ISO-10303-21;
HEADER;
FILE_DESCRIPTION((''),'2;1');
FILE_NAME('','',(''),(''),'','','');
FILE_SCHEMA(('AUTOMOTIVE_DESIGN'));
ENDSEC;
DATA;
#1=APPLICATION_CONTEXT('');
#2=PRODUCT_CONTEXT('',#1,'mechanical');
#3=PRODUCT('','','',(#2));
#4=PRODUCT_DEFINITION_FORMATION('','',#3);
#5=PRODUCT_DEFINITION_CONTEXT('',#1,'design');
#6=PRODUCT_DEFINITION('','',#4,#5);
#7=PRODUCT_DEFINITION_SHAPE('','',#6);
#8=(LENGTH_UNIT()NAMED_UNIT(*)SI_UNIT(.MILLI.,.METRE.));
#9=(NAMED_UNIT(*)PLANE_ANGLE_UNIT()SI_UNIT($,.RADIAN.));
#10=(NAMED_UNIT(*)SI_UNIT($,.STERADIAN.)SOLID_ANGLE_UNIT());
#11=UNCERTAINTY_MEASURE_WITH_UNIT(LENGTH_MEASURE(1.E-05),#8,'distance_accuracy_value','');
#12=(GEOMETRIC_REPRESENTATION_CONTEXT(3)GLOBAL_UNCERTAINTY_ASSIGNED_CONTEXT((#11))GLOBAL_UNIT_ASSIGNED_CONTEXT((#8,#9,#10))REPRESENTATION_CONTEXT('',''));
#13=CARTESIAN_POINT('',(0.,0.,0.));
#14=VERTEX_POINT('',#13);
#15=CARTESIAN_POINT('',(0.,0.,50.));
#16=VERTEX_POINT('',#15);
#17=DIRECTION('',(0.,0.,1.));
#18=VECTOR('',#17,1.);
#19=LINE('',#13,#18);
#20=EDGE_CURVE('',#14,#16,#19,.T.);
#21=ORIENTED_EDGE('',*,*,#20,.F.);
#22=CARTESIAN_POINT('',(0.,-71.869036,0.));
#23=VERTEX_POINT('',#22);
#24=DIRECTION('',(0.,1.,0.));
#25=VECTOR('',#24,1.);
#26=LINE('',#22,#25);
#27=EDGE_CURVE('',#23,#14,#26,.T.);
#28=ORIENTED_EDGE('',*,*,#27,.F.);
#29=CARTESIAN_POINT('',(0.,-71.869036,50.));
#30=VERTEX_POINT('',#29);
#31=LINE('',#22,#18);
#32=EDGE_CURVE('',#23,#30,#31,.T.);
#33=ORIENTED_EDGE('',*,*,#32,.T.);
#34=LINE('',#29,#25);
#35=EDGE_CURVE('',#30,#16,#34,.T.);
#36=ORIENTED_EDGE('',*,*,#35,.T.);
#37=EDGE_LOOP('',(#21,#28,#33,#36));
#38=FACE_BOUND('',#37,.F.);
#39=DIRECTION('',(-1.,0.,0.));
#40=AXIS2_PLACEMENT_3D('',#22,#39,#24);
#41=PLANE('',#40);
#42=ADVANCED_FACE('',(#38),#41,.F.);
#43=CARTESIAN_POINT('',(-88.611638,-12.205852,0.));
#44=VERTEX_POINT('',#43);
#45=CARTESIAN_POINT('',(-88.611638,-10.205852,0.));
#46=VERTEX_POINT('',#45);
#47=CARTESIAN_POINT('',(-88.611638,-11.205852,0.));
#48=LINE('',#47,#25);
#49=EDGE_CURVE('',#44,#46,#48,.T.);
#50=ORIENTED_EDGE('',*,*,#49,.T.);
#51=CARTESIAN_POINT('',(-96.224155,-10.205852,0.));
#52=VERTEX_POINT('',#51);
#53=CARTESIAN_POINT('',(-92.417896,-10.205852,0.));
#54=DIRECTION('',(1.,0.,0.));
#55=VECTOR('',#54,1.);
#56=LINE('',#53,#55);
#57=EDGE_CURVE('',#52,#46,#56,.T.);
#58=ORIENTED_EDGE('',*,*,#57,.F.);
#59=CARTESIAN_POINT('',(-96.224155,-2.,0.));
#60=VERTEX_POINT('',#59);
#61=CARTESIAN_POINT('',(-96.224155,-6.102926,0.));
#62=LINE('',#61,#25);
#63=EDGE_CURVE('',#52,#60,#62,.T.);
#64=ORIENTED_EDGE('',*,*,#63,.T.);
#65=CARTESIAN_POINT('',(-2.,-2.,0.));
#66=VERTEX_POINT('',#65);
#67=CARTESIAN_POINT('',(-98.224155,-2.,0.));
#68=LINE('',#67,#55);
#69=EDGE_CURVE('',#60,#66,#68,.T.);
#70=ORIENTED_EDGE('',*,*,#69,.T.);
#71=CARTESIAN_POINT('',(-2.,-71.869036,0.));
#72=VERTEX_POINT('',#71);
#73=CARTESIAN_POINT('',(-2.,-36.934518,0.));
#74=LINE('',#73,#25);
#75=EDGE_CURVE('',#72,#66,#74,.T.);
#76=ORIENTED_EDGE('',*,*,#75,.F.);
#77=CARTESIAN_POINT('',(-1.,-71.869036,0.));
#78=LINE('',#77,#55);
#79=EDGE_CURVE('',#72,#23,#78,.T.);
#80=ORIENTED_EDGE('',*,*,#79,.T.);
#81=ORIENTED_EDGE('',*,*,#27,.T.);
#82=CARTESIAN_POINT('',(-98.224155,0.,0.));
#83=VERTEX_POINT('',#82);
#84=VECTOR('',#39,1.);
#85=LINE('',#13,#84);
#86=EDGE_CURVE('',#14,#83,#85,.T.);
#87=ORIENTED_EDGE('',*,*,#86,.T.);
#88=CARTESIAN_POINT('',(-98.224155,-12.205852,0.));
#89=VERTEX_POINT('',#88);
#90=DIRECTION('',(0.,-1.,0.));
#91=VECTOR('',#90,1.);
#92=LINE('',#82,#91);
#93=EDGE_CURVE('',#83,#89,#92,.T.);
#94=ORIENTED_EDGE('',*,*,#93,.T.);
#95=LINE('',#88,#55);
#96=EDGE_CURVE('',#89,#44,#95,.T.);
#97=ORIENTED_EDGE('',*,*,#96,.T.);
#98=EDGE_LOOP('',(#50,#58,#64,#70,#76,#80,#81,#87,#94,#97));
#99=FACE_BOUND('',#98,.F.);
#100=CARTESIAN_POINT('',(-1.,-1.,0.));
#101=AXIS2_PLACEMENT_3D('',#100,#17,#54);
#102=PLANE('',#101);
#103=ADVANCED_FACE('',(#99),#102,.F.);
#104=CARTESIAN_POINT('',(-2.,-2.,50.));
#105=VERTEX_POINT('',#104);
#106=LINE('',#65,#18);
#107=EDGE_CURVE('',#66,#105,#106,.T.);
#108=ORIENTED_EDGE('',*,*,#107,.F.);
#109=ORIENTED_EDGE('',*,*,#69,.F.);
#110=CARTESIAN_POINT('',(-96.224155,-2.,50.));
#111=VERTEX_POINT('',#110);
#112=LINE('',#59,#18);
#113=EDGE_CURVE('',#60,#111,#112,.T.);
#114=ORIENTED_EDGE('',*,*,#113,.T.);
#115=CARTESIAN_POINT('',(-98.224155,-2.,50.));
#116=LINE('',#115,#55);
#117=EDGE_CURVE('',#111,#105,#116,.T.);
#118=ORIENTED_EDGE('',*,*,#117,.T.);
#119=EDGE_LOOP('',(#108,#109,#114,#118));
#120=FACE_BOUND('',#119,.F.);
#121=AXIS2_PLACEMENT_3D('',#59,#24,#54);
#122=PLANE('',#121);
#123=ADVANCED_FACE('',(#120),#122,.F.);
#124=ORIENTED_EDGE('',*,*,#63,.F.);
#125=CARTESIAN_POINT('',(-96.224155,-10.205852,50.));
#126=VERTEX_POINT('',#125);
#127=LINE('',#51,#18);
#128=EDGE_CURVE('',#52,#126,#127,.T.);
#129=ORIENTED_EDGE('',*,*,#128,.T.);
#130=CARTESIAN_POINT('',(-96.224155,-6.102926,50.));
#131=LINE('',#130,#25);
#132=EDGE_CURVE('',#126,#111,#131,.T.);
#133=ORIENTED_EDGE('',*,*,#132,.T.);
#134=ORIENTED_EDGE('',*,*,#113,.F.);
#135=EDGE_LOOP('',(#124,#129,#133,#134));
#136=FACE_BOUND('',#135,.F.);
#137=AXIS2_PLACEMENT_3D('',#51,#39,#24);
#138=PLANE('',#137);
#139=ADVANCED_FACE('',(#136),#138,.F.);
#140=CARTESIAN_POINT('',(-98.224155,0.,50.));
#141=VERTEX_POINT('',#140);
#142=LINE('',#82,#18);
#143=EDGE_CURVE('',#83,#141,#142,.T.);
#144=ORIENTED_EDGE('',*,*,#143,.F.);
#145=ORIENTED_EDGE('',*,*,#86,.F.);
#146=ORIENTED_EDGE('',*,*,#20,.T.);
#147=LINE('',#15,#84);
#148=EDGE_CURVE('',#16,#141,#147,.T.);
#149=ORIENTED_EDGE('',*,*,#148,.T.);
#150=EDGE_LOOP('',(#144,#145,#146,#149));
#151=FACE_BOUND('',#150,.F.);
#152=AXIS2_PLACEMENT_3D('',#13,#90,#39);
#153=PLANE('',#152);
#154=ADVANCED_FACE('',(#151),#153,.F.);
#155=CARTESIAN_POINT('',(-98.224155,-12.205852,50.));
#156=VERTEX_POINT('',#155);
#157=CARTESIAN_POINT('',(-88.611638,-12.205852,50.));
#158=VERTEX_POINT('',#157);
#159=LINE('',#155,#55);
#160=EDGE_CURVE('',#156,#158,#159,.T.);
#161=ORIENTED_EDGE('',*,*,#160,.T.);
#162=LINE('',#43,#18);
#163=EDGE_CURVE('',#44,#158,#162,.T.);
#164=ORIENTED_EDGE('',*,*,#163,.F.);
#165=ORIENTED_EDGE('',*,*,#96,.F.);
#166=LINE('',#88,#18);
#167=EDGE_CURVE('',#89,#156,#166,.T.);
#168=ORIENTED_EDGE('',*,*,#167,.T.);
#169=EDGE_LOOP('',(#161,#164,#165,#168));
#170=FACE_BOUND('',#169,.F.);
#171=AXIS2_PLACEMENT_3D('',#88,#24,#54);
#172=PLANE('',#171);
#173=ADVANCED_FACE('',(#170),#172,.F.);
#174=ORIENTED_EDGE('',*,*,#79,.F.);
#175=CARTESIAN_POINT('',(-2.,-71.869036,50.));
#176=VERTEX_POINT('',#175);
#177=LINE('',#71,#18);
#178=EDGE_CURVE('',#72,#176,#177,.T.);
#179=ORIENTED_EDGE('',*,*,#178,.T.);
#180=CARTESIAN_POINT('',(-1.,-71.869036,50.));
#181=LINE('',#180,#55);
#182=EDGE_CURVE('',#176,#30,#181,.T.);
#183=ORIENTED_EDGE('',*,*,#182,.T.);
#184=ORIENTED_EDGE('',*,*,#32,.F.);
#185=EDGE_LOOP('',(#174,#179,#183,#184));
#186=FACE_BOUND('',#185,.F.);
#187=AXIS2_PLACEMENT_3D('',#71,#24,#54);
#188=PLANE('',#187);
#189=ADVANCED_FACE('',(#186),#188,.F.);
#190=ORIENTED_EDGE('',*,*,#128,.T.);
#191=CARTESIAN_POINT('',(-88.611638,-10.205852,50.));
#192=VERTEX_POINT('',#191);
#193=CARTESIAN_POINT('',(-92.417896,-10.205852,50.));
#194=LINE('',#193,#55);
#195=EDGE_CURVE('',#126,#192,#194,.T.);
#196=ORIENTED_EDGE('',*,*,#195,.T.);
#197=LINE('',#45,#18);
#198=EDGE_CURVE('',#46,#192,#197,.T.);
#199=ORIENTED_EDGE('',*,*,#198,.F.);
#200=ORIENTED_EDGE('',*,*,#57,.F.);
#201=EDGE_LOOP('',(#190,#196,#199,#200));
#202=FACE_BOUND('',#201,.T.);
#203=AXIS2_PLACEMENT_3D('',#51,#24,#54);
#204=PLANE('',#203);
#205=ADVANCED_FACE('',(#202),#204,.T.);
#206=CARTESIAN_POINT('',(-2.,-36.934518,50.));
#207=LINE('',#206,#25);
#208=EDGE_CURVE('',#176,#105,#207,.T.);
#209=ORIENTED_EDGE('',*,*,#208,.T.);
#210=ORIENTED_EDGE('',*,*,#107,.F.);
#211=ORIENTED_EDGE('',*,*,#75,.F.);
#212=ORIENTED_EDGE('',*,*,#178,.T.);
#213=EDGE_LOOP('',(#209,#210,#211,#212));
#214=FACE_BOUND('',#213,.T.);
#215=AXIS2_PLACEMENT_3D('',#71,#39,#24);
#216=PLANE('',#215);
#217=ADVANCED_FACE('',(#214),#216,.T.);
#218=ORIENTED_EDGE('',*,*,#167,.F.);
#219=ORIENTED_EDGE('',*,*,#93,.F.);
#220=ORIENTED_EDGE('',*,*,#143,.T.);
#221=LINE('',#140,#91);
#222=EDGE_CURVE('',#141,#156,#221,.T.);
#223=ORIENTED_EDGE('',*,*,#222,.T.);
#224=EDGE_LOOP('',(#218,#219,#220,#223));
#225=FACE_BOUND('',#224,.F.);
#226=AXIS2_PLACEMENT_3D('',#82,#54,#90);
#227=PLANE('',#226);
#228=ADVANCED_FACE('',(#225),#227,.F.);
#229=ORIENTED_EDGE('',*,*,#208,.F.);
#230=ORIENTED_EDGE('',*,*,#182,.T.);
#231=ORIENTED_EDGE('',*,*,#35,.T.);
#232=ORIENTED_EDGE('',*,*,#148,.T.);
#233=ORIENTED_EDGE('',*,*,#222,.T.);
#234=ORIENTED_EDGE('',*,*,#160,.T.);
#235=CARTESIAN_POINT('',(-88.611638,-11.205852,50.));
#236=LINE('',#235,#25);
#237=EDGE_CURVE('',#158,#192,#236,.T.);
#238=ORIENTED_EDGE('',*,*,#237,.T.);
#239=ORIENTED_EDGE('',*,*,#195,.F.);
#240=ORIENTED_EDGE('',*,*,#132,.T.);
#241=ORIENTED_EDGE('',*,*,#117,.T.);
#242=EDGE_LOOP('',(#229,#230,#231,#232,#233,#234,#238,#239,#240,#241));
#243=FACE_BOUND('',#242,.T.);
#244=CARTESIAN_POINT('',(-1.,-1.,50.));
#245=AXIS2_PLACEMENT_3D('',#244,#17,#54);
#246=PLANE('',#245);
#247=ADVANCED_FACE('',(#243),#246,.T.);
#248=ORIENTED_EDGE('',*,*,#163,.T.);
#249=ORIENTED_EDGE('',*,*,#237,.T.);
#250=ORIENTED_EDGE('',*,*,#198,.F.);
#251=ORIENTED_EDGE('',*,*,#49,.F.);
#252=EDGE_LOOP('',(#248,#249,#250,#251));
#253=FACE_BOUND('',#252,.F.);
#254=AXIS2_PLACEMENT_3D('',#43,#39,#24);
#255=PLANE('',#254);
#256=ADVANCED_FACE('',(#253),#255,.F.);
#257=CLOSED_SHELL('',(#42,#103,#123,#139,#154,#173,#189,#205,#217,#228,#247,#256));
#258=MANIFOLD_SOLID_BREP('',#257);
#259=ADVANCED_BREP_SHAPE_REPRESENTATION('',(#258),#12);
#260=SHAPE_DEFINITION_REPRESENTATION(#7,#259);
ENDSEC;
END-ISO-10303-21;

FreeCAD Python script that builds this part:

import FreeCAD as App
import Part
import Sketcher
from FreeCAD import Vector
Q = App.Units.Quantity


def add_polygon(sketch, points):
    """Adds a closed chain of lines whose ends are joined by coincident constraints."""
    first, n = sketch.GeometryCount, len(points)
    for a, b in zip(points, points[1:] + points[:1]):
        sketch.addGeometry(Part.LineSegment(App.Vector(*a, 0), App.Vector(*b, 0)), False)
    for i in range(n):
        sketch.addConstraint(Sketcher.Constraint("Coincident", first + i, 2, first + (i + 1) % n, 1))

doc = App.newDocument("Part")
body = doc.addObject("PartDesign::Body", "Body")

# Sketch on XY plane
sketch1 = doc.addObject("Sketcher::SketchObject", "Sketch")
body.addObject(sketch1)
sketch1.AttachmentSupport = (doc.XY_Plane, [""])
sketch1.MapMode = "FlatFace"
add_polygon(sketch1, [(0, 0), (-98.2, 0), (-98.2, -12.2), (-88.6, -12.2), (-88.6, -10.2), (-96.2, -10.2), (-96.2, -2), (-2, -2), (-2, -71.9), (0, -71.9)])  # lines 0-9
sketch1.addConstraint(Sketcher.Constraint("Horizontal", 0))
sketch1.addConstraint(Sketcher.Constraint("Vertical", 1))
sketch1.addConstraint(Sketcher.Constraint("Horizontal", 2))
sketch1.addConstraint(Sketcher.Constraint("Vertical", 3))
sketch1.addConstraint(Sketcher.Constraint("Horizontal", 4))
sketch1.addConstraint(Sketcher.Constraint("Vertical", 5))
sketch1.addConstraint(Sketcher.Constraint("Horizontal", 6))
sketch1.addConstraint(Sketcher.Constraint("Vertical", 7))
sketch1.addConstraint(Sketcher.Constraint("Horizontal", 8))
sketch1.addConstraint(Sketcher.Constraint("Vertical", 9))
sketch1.addConstraint(Sketcher.Constraint("Coincident", 9, 2, -1, 1))
sketch1.addConstraint(Sketcher.Constraint("Equal", 8, 3))
sketch1.addConstraint(Sketcher.Constraint("DistanceX", 8, 1, 8, 2, Q("2 mm")))
sketch1.addConstraint(Sketcher.Constraint("DistanceY", 5, 2, -1, 1, Q("2 mm")))
sketch1.addConstraint(Sketcher.Constraint("DistanceX", 1, 2, 4, 2, Q("2 mm")))
sketch1.addConstraint(Sketcher.Constraint("DistanceX", 0, 2, 0, 1, Q("98.224155 mm")))
sketch1.addConstraint(Sketcher.Constraint("DistanceX", 2, 1, 2, 2, Q("9.612518 mm")))
sketch1.addConstraint(Sketcher.Constraint("DistanceY", 1, 2, 1, 1, Q("12.205852 mm")))
sketch1.addConstraint(Sketcher.Constraint("DistanceY", 7, 2, 7, 1, Q("69.869036 mm")))
pad1 = doc.addObject("PartDesign::Pad", "Pad")
body.addObject(pad1)
pad1.Profile = sketch1
pad1.Length = 50

doc.recompute()
